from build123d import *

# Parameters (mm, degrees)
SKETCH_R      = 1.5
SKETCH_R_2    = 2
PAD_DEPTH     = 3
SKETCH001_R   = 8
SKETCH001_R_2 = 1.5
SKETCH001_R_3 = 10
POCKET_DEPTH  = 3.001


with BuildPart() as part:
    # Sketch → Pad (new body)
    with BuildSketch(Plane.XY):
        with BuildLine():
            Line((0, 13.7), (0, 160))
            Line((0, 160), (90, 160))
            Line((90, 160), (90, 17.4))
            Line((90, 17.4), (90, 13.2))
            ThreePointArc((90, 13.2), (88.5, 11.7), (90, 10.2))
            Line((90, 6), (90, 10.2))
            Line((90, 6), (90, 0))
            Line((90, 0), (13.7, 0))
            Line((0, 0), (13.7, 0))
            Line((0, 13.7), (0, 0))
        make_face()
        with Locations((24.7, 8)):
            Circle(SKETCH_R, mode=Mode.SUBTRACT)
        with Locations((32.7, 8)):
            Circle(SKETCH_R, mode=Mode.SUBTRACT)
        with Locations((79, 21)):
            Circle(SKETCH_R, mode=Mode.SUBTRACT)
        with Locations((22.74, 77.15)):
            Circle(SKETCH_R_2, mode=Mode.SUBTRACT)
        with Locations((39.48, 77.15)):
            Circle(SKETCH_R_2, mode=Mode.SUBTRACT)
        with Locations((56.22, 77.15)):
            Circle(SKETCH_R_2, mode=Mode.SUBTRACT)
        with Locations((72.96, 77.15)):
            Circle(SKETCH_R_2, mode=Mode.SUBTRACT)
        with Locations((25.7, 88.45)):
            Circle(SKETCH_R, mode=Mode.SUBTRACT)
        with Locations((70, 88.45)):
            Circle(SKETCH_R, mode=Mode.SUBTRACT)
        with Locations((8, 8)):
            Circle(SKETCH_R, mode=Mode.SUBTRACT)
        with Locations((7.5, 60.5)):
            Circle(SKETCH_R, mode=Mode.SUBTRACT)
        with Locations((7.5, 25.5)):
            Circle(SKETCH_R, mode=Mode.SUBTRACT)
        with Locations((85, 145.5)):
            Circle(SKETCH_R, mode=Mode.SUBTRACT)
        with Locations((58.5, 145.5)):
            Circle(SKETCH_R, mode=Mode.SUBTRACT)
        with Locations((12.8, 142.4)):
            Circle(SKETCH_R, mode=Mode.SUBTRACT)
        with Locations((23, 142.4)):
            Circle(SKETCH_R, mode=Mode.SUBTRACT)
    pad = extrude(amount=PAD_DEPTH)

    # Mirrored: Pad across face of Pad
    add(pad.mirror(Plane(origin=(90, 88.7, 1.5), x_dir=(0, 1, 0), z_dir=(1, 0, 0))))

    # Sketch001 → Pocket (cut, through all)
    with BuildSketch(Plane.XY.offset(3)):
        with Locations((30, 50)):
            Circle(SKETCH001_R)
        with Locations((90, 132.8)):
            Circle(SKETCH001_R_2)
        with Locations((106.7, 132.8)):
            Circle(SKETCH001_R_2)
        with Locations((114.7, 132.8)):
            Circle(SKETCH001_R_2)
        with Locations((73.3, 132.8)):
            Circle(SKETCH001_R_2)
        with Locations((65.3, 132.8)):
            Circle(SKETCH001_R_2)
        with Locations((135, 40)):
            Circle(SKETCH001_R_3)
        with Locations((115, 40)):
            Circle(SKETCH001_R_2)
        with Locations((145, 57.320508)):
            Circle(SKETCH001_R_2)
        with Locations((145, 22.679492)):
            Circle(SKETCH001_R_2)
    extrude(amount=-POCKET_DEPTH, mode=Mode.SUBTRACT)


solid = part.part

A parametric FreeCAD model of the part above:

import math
import FreeCAD as App
import Part
import Sketcher

V = App.Vector
Q = App.Units.Quantity

doc = App.newDocument("Part")
body = doc.addObject("PartDesign::Body", "Body")

sketch1 = body.newObject("Sketcher::SketchObject", "Sketch")
sketch1.AttachmentSupport = (doc.getObject("XY_Plane"), [""])
sketch1.MapMode = "FlatFace"
sketch1.addGeometry(Part.LineSegment(V(0, 160, 0), V(0, 0, 0)), False)
sketch1.addGeometry(Part.LineSegment(V(0, 0, 0), V(90, 0, 0)), False)
sketch1.addGeometry(Part.LineSegment(V(90, 0, 0), V(90, 10.2, 0)), False)
sketch1.addGeometry(Part.ArcOfCircle(Part.Circle(V(90, 11.7, 0), V(0, 0, 1), 1.5), math.radians(90), math.radians(270)), False)
sketch1.addGeometry(Part.LineSegment(V(90, 13.2, 0), V(90, 160, 0)), False)
sketch1.addGeometry(Part.LineSegment(V(90, 160, 0), V(0, 160, 0)), False)
sketch1.addGeometry(Part.Circle(V(79, 21, 0), V(0, 0, 1), 1.5), False)
sketch1.addGeometry(Part.Circle(V(32.7, 8, 0), V(0, 0, 1), 1.5), False)
sketch1.addGeometry(Part.Circle(V(24.7, 8, 0), V(0, 0, 1), 1.5), False)
sketch1.addGeometry(Part.Circle(V(8, 8, 0), V(0, 0, 1), 1.5), False)
sketch1.addGeometry(Part.Circle(V(7.5, 25.5, 0), V(0, 0, 1), 1.5), False)
sketch1.addGeometry(Part.Circle(V(7.5, 60.5, 0), V(0, 0, 1), 1.5), False)
sketch1.addGeometry(Part.Circle(V(73, 77.2, 0), V(0, 0, 1), 2), False)
sketch1.addGeometry(Part.Circle(V(70, 88.5, 0), V(0, 0, 1), 1.5), False)
sketch1.addGeometry(Part.Circle(V(56.2, 77.2, 0), V(0, 0, 1), 2), False)
sketch1.addGeometry(Part.Circle(V(85, 145.5, 0), V(0, 0, 1), 1.5), False)
sketch1.addGeometry(Part.Circle(V(58.5, 145.5, 0), V(0, 0, 1), 1.5), False)
sketch1.addGeometry(Part.Circle(V(39.5, 77.2, 0), V(0, 0, 1), 2), False)
sketch1.addGeometry(Part.Circle(V(22.7, 77.2, 0), V(0, 0, 1), 2), False)
sketch1.addGeometry(Part.Circle(V(25.7, 88.5, 0), V(0, 0, 1), 1.5), False)
sketch1.addGeometry(Part.Circle(V(23, 142.4, 0), V(0, 0, 1), 1.5), False)
sketch1.addGeometry(Part.Circle(V(12.8, 142.4, 0), V(0, 0, 1), 1.5), False)
sketch1.addConstraint(Sketcher.Constraint("Coincident", 0, 2, 1, 1))
sketch1.addConstraint(Sketcher.Constraint("Coincident", 1, 2, 2, 1))
sketch1.addConstraint(Sketcher.Constraint("Coincident", 2, 2, 3, 2))
sketch1.addConstraint(Sketcher.Constraint("Coincident", 3, 1, 4, 1))
sketch1.addConstraint(Sketcher.Constraint("Coincident", 4, 2, 5, 1))
sketch1.addConstraint(Sketcher.Constraint("Coincident", 5, 2, 0, 1))
sketch1.addConstraint(Sketcher.Constraint("Vertical", 0))
sketch1.addConstraint(Sketcher.Constraint("Horizontal", 1))
sketch1.addConstraint(Sketcher.Constraint("Vertical", 2))
sketch1.addConstraint(Sketcher.Constraint("Vertical", 4))
sketch1.addConstraint(Sketcher.Constraint("Horizontal", 5))
sketch1.addConstraint(Sketcher.Constraint("Coincident", 0, 2, -1, 1))
sketch1.addConstraint(Sketcher.Constraint("Equal", 3, 6))
sketch1.addConstraint(Sketcher.Constraint("Equal", 6, 7))
sketch1.addConstraint(Sketcher.Constraint("Equal", 7, 8))
sketch1.addConstraint(Sketcher.Constraint("Equal", 8, 9))
sketch1.addConstraint(Sketcher.Constraint("Equal", 9, 10))
sketch1.addConstraint(Sketcher.Constraint("Equal", 10, 11))
sketch1.addConstraint(Sketcher.Constraint("Equal", 11, 13))
sketch1.addConstraint(Sketcher.Constraint("Equal", 12, 14))
sketch1.addConstraint(Sketcher.Constraint("Equal", 13, 15))
sketch1.addConstraint(Sketcher.Constraint("Equal", 15, 16))
sketch1.addConstraint(Sketcher.Constraint("Equal", 14, 17))
sketch1.addConstraint(Sketcher.Constraint("Equal", 17, 18))
sketch1.addConstraint(Sketcher.Constraint("Equal", 16, 19))
sketch1.addConstraint(Sketcher.Constraint("Equal", 19, 20))
sketch1.addConstraint(Sketcher.Constraint("Equal", 20, 21))
sketch1.addConstraint(Sketcher.Constraint("Horizontal", 7, 3, 8, 3))
sketch1.addConstraint(Sketcher.Constraint("Horizontal", 8, 3, 9, 3))
sketch1.addConstraint(Sketcher.Constraint("Horizontal", 12, 3, 14, 3))
sketch1.addConstraint(Sketcher.Constraint("Horizontal", 15, 3, 16, 3))
sketch1.addConstraint(Sketcher.Constraint("Horizontal", 14, 3, 17, 3))
sketch1.addConstraint(Sketcher.Constraint("Horizontal", 17, 3, 18, 3))
sketch1.addConstraint(Sketcher.Constraint("Horizontal", 13, 3, 19, 3))
sketch1.addConstraint(Sketcher.Constraint("Horizontal", 20, 3, 21, 3))
sketch1.addConstraint(Sketcher.Constraint("Vertical", 10, 3, 11, 3))
sketch1.addConstraint(Sketcher.Constraint("Vertical", 3, 3, 1, 2))
sketch1.addConstraint(Sketcher.Constraint("Vertical", 2, 2, 3, 1))
sketch1.addConstraint(Sketcher.Constraint("Diameter", 6, Q("3 mm")))
sketch1.addConstraint(Sketcher.Constraint("Diameter", 12, Q("4 mm")))
sketch1.addConstraint(Sketcher.Constraint("DistanceX", 1, 1, 1, 2, Q("90 mm")))
sketch1.addConstraint(Sketcher.Constraint("DistanceY", 0, 2, 0, 1, Q("160 mm")))
sketch1.addConstraint(Sketcher.Constraint("DistanceY", 2, 1, 2, 2, Q("10.2 mm")))
sketch1.addConstraint(Sketcher.Constraint("DistanceX", -1, 1, 6, 3, Q("79 mm")))
sketch1.addConstraint(Sketcher.Constraint("DistanceY", -1, 1, 6, 3, Q("21 mm")))
sketch1.addConstraint(Sketcher.Constraint("DistanceY", -1, 1, 7, 3, Q("8 mm")))
sketch1.addConstraint(Sketcher.Constraint("DistanceX", -1, 1, 9, 3, Q("8 mm")))
sketch1.addConstraint(Sketcher.Constraint("DistanceX", -1, 1, 13, 3, Q("70 mm")))
sketch1.addConstraint(Sketcher.Constraint("DistanceX", -1, 1, 15, 3, Q("85 mm")))
sketch1.addConstraint(Sketcher.Constraint("DistanceX", -1, 1, 20, 3, Q("23 mm")))
sketch1.addConstraint(Sketcher.Constraint("DistanceX", 8, 3, 7, 3, Q("8 mm")))
sketch1.addConstraint(Sketcher.Constraint("DistanceY", 10, 3, 11, 3, Q("35 mm")))
sketch1.addConstraint(Sketcher.Constraint("DistanceY", 11, 3, 15, 3, Q("85 mm")))
sketch1.addConstraint(Sketcher.Constraint("DistanceX", 11, 3, 16, 3, Q("51 mm")))
sketch1.addConstraint(Sketcher.Constraint("DistanceX", -1, 1, 7, 3, Q("32.7 mm")))
sketch1.addConstraint(Sketcher.Constraint("DistanceX", -1, 1, 10, 3, Q("7.5 mm")))
sketch1.addConstraint(Sketcher.Constraint("DistanceY", -1, 1, 10, 3, Q("25.5 mm")))
sketch1.addConstraint(Sketcher.Constraint("DistanceX", -1, 1, 19, 3, Q("25.7 mm")))
sketch1.addConstraint(Sketcher.Constraint("DistanceY", -1, 1, 20, 3, Q("142.4 mm")))
sketch1.addConstraint(Sketcher.Constraint("DistanceX", -1, 1, 21, 3, Q("12.8 mm")))
sketch1.addConstraint(Sketcher.Constraint("DistanceY", 12, 3, 13, 3, Q("11.3 mm")))
sketch1.addConstraint(Sketcher.Constraint("DistanceX", -1, 1, 12, 3, Q("72.96 mm")))
sketch1.addConstraint(Sketcher.Constraint("DistanceY", -1, 1, 12, 3, Q("77.15 mm")))
sketch1.addConstraint(Sketcher.Constraint("DistanceX", -1, 1, 14, 3, Q("56.22 mm")))
sketch1.addConstraint(Sketcher.Constraint("DistanceX", -1, 1, 17, 3, Q("39.48 mm")))
sketch1.addConstraint(Sketcher.Constraint("DistanceX", -1, 1, 18, 3, Q("22.74 mm")))
pad1 = body.newObject("PartDesign::Pad", "Pad")
pad1.Profile = sketch1
pad1.Length = 3
doc.recompute()

datumplane = body.newObject("PartDesign::Plane", "DatumPlane")
datumplane.AttachmentSupport = (doc.getObject("YZ_Plane"), [""])
datumplane.MapMode = "FlatFace"
datumplane.AttachmentOffset = App.Placement(V(0, 0, 90), App.Rotation())
mirrored = body.newObject("PartDesign::Mirrored", "Mirrored")
mirrored.Originals = [pad1]
mirrored.MirrorPlane = (datumplane, [""])
body.Tip = mirrored

sketch2 = body.newObject("Sketcher::SketchObject", "Sketch001")
sketch2.AttachmentSupport = (doc.getObject("XY_Plane"), [""])
sketch2.MapMode = "FlatFace"
sketch2.AttachmentOffset = App.Placement(V(0, 0, 3), App.Rotation())
sketch2.addGeometry(Part.Circle(V(30, 50, 0), V(0, 0, 1), 8), False)
sketch2.addGeometry(Part.Circle(V(90, 132.8, 0), V(0, 0, 1), 1.5), False)
sketch2.addGeometry(Part.Circle(V(106.7, 132.8, 0), V(0, 0, 1), 1.5), False)
sketch2.addGeometry(Part.Circle(V(114.7, 132.8, 0), V(0, 0, 1), 1.5), False)
sketch2.addGeometry(Part.Circle(V(73.3, 132.8, 0), V(0, 0, 1), 1.5), False)
sketch2.addGeometry(Part.Circle(V(65.3, 132.8, 0), V(0, 0, 1), 1.5), False)
sketch2.addGeometry(Part.Circle(V(135, 40, 0), V(0, 0, 1), 10), False)
sketch2.addGeometry(Part.Circle(V(115, 40, 0), V(0, 0, 1), 1.5), False)
sketch2.addGeometry(Part.Circle(V(145, 57.3, 0), V(0, 0, 1), 1.5), False)
sketch2.addGeometry(Part.Circle(V(145, 22.7, 0), V(0, 0, 1), 1.5), False)
sketch2.addConstraint(Sketcher.Constraint("Equal", 1, 2))
sketch2.addConstraint(Sketcher.Constraint("Equal", 2, 3))
sketch2.addConstraint(Sketcher.Constraint("Equal", 3, 4))
sketch2.addConstraint(Sketcher.Constraint("Equal", 4, 5))
sketch2.addConstraint(Sketcher.Constraint("Equal", 5, 7))
sketch2.addConstraint(Sketcher.Constraint("Equal", 7, 8))
sketch2.addConstraint(Sketcher.Constraint("Equal", 8, 9))
sketch2.addConstraint(Sketcher.Constraint("Horizontal", 1, 3, 2, 3))
sketch2.addConstraint(Sketcher.Constraint("Horizontal", 2, 3, 3, 3))
sketch2.addConstraint(Sketcher.Constraint("Horizontal", 3, 3, 4, 3))
sketch2.addConstraint(Sketcher.Constraint("Horizontal", 4, 3, 5, 3))
sketch2.addConstraint(Sketcher.Constraint("Horizontal", 6, 3, 7, 3))
sketch2.addConstraint(Sketcher.Constraint("Vertical", 8, 3, 9, 3))
sketch2.addConstraint(Sketcher.Constraint("Diameter", 0, Q("16 mm")))
sketch2.addConstraint(Sketcher.Constraint("Diameter", 1, Q("3 mm")))
sketch2.addConstraint(Sketcher.Constraint("Diameter", 6, Q("20 mm")))
sketch2.addConstraint(Sketcher.Constraint("DistanceX", -1, 1, 0, 3, Q("30 mm")))
sketch2.addConstraint(Sketcher.Constraint("DistanceY", -1, 1, 0, 3, Q("50 mm")))
sketch2.addConstraint(Sketcher.Constraint("DistanceX", -1, 1, 1, 3, Q("90 mm")))
sketch2.addConstraint(Sketcher.Constraint("DistanceX", -1, 1, 6, 3, Q("135 mm")))
sketch2.addConstraint(Sketcher.Constraint("DistanceY", -1, 1, 6, 3, Q("40 mm")))
sketch2.addConstraint(Sketcher.Constraint("DistanceX", -1, 1, 7, 3, Q("115 mm")))
sketch2.addConstraint(Sketcher.Constraint("DistanceX", -1, 1, 8, 3, Q("145 mm")))
sketch2.addConstraint(Sketcher.Constraint("DistanceX", 2, 3, 3, 3, Q("8 mm")))
sketch2.addConstraint(Sketcher.Constraint("DistanceX", 5, 3, 4, 3, Q("8 mm")))
sketch2.addConstraint(Sketcher.Constraint("DistanceY", -1, 1, 1, 3, Q("132.8 mm")))
sketch2.addConstraint(Sketcher.Constraint("DistanceX", -1, 1, 2, 3, Q("106.7 mm")))
sketch2.addConstraint(Sketcher.Constraint("DistanceX", -1, 1, 4, 3, Q("73.3 mm")))
sketch2.addConstraint(Sketcher.Constraint("DistanceY", -1, 1, 9, 3, Q("22.679492 mm")))
sketch2.addConstraint(Sketcher.Constraint("DistanceY", -1, 1, 8, 3, Q("57.320508 mm")))
pocket1 = body.newObject("PartDesign::Pocket", "Pocket")
pocket1.Profile = sketch2
pocket1.Type = "ThroughAll"

doc.recompute()
